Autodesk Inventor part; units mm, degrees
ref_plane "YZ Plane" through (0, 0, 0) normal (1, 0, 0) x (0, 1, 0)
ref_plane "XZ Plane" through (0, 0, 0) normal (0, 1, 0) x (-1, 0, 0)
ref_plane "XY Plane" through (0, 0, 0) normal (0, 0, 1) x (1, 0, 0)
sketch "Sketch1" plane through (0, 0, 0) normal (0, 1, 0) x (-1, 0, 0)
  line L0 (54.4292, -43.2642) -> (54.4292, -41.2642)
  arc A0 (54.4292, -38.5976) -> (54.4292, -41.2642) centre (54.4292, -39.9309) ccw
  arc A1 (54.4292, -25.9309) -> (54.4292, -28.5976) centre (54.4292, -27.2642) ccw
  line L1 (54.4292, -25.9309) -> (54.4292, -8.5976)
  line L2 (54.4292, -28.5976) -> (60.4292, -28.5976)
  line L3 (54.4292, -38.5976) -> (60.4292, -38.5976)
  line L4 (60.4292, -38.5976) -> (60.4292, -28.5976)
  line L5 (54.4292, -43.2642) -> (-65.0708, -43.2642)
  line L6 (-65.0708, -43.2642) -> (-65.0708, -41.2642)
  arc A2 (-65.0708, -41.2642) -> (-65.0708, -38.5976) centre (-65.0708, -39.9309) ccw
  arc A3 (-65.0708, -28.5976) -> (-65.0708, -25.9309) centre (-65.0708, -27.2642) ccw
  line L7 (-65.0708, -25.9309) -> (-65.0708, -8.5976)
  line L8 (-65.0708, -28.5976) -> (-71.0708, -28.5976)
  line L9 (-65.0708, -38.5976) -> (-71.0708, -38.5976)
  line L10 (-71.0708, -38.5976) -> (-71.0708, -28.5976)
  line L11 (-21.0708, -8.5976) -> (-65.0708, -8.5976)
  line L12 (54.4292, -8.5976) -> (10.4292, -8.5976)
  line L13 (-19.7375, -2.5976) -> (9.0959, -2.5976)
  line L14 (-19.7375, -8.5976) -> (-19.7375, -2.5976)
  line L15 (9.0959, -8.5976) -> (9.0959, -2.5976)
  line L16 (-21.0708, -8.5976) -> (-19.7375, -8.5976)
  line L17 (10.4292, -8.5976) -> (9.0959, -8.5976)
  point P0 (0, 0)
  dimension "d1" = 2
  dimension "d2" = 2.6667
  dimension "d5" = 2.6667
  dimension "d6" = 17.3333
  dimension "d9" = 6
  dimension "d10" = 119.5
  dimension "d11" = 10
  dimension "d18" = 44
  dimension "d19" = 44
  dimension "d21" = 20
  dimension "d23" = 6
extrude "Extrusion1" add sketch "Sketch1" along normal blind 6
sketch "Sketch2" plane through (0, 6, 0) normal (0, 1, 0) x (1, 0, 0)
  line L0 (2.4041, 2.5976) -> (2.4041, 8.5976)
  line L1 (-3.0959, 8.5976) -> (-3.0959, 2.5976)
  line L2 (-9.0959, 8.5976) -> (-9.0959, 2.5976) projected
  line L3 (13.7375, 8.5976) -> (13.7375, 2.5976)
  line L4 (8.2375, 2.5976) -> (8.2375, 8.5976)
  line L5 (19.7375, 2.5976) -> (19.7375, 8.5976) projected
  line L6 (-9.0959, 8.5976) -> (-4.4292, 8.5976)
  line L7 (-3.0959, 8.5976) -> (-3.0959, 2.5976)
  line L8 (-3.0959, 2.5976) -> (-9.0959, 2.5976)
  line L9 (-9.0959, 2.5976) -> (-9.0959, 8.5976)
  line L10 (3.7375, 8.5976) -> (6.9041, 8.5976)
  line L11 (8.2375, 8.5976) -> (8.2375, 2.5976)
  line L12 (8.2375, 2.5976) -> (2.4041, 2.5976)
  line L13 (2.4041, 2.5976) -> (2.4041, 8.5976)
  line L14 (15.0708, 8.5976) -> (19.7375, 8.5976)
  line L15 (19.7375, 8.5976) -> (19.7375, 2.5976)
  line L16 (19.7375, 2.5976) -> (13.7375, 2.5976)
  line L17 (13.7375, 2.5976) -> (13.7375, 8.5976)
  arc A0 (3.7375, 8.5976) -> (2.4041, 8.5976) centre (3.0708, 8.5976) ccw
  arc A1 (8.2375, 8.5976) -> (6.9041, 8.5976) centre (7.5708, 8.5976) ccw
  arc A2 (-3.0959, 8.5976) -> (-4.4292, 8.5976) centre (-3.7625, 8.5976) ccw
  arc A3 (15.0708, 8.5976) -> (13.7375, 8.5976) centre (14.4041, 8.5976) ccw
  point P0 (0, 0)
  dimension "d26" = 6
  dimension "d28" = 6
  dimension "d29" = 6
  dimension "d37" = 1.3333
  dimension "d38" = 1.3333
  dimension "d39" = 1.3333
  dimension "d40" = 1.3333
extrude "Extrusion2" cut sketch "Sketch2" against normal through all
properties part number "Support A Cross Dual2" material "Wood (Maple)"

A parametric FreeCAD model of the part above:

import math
import FreeCAD as App
import Part
import Sketcher
from FreeCAD import Vector

doc = App.newDocument("Part")
body = doc.addObject("PartDesign::Body", "Body")

sketch1 = body.newObject("Sketcher::SketchObject", "Sketch")
sketch1.AttachmentSupport = (doc.getObject("XZ_Plane"), [""])
sketch1.MapMode = "FlatFace"
sketch1.addGeometry([
    Part.LineSegment(Vector(65.1, -43.3, 0), Vector(-54.4, -43.3, 0)),
    Part.LineSegment(Vector(-54.4, -43.3, 0), Vector(-54.4, -41.3, 0)),
    Part.ArcOfCircle(Part.Circle(Vector(-54.4, -39.9, 0), Vector(0, 0, 1), 1.3), math.radians(-90), math.radians(90)),
    Part.LineSegment(Vector(-54.4, -38.6, 0), Vector(-60.4, -38.6, 0)),
    Part.LineSegment(Vector(-60.4, -38.6, 0), Vector(-60.4, -28.6, 0)),
    Part.LineSegment(Vector(-60.4, -28.6, 0), Vector(-54.4, -28.6, 0)),
    Part.ArcOfCircle(Part.Circle(Vector(-54.4, -27.3, 0), Vector(0, 0, 1), 1.3), math.radians(-90), math.radians(90)),
    Part.LineSegment(Vector(-54.4, -25.9, 0), Vector(-54.4, -8.6, 0)),
    Part.LineSegment(Vector(-54.4, -8.6, 0), Vector(-9.1, -8.6, 0)),
    Part.LineSegment(Vector(-9.1, -8.6, 0), Vector(-9.1, -2.6, 0)),
    Part.LineSegment(Vector(-9.1, -2.6, 0), Vector(19.7, -2.6, 0)),
    Part.LineSegment(Vector(19.7, -2.6, 0), Vector(19.7, -8.6, 0)),
    Part.LineSegment(Vector(19.7, -8.6, 0), Vector(65.1, -8.6, 0)),
    Part.LineSegment(Vector(65.1, -8.6, 0), Vector(65.1, -25.9, 0)),
    Part.ArcOfCircle(Part.Circle(Vector(65.1, -27.3, 0), Vector(0, 0, 1), 1.3), math.radians(90), math.radians(270)),
    Part.LineSegment(Vector(65.1, -28.6, 0), Vector(71.1, -28.6, 0)),
    Part.LineSegment(Vector(71.1, -28.6, 0), Vector(71.1, -38.6, 0)),
    Part.LineSegment(Vector(71.1, -38.6, 0), Vector(65.1, -38.6, 0)),
    Part.ArcOfCircle(Part.Circle(Vector(65.1, -39.9, 0), Vector(0, 0, 1), 1.3), math.radians(90), math.radians(270)),
    Part.LineSegment(Vector(65.1, -41.3, 0), Vector(65.1, -43.3, 0)),
], False)
sketch1.addConstraint([
    Sketcher.Constraint("Coincident", 0, 2, 1, 1),
    Sketcher.Constraint("Coincident", 1, 2, 2, 1),
    Sketcher.Constraint("Tangent", 2, 2, 3, 1),
    Sketcher.Constraint("Coincident", 3, 2, 4, 1),
    Sketcher.Constraint("Coincident", 4, 2, 5, 1),
    Sketcher.Constraint("Tangent", 5, 2, 6, 1),
    Sketcher.Constraint("Coincident", 6, 2, 7, 1),
    Sketcher.Constraint("Coincident", 7, 2, 8, 1),
    Sketcher.Constraint("Coincident", 8, 2, 9, 1),
    Sketcher.Constraint("Coincident", 9, 2, 10, 1),
    Sketcher.Constraint("Coincident", 10, 2, 11, 1),
    Sketcher.Constraint("Coincident", 11, 2, 12, 1),
    Sketcher.Constraint("Coincident", 12, 2, 13, 1),
    Sketcher.Constraint("Coincident", 13, 2, 14, 1),
    Sketcher.Constraint("Tangent", 14, 2, 15, 1),
    Sketcher.Constraint("Coincident", 15, 2, 16, 1),
    Sketcher.Constraint("Coincident", 16, 2, 17, 1),
    Sketcher.Constraint("Tangent", 17, 2, 18, 1),
    Sketcher.Constraint("Coincident", 18, 2, 19, 1),
    Sketcher.Constraint("Coincident", 19, 2, 0, 1),
    Sketcher.Constraint("Horizontal", 0),
    Sketcher.Constraint("Vertical", 1),
    Sketcher.Constraint("Horizontal", 3),
    Sketcher.Constraint("Vertical", 4),
    Sketcher.Constraint("Horizontal", 5),
    Sketcher.Constraint("Vertical", 7),
    Sketcher.Constraint("Horizontal", 8),
    Sketcher.Constraint("Vertical", 9),
    Sketcher.Constraint("Horizontal", 10),
    Sketcher.Constraint("Vertical", 11),
    Sketcher.Constraint("Horizontal", 12),
    Sketcher.Constraint("Vertical", 13),
    Sketcher.Constraint("Horizontal", 15),
    Sketcher.Constraint("Vertical", 16),
    Sketcher.Constraint("Horizontal", 17),
    Sketcher.Constraint("Vertical", 19),
    Sketcher.Constraint("Equal", 2, 6),
    Sketcher.Constraint("Equal", 6, 14),
    Sketcher.Constraint("Equal", 14, 18),
    Sketcher.Constraint("Horizontal", 6, 3, 14, 3),
    Sketcher.Constraint("Horizontal", 2, 3, 18, 3),
    Sketcher.Constraint("Horizontal", 8, 2, 11, 2),
    Sketcher.Constraint("Vertical", 2, 3, 6, 3),
    Sketcher.Constraint("Vertical", 14, 3, 18, 3),
    Sketcher.Constraint("Vertical", 6, 3, 0, 2),
    Sketcher.Constraint("Vertical", 5, 2, 6, 2),
    Sketcher.Constraint("Vertical", 18, 3, 12, 2),
    Sketcher.Constraint("Vertical", 17, 2, 18, 2),
    Sketcher.Constraint("Equal", 8, 12),
    Sketcher.Constraint("Equal", 5, 15),
    Sketcher.Constraint("Equal", 17, 9),
    Sketcher.Constraint("DistanceX", 3, 2, 3, 1, 6.0),
    Sketcher.Constraint("DistanceY", 1, 1, 1, 2, 2.0),
    Sketcher.Constraint("DistanceY", 4, 1, 4, 2, 10.0),
    Sketcher.Constraint("DistanceX", 0, 2, 0, 1, 119.5),
    Sketcher.Constraint("DistanceY", 5, 2, 7, 2, 20.0),
    Sketcher.Constraint("Radius", 2, 1.3333),
    Sketcher.Constraint("DistanceX", 8, 1, 8, 2, 45.3333),
    Sketcher.Constraint("DistanceY", 2, 3, -1, 1, 39.931),
    Sketcher.Constraint("DistanceX", 8, 2, -1, 1, 9.096),
])
pad1 = body.newObject("PartDesign::Pad", "Pad")
pad1.Profile = sketch1
pad1.Length = 6
pad1.Reversed = True

sketch2 = body.newObject("Sketcher::SketchObject", "Sketch001")
sketch2.AttachmentSupport = (doc.getObject("XZ_Plane"), [""])
sketch2.MapMode = "FlatFace"
sketch2.AttachmentOffset = App.Placement(Vector(0, 0, -6), App.Rotation())
sketch2.addGeometry([
    Part.LineSegment(Vector(2.4, -8.6, 0), Vector(2.4, -2.6, 0)),
    Part.LineSegment(Vector(2.4, -2.6, 0), Vector(8.2, -2.6, 0)),
    Part.LineSegment(Vector(8.2, -2.6, 0), Vector(8.2, -8.6, 0)),
    Part.ArcOfCircle(Part.Circle(Vector(7.6, -8.6, 0), Vector(0, 0, 1), 0.7), math.radians(180), math.radians(360)),
    Part.LineSegment(Vector(6.9, -8.6, 0), Vector(3.7, -8.6, 0)),
    Part.ArcOfCircle(Part.Circle(Vector(3.1, -8.6, 0), Vector(0, 0, 1), 0.7), math.radians(180), math.radians(360)),
    Part.LineSegment(Vector(-3.1, -2.6, 0), Vector(-3.1, -8.6, 0)),
    Part.ArcOfCircle(Part.Circle(Vector(-3.8, -8.6, 0), Vector(0, 0, 1), 0.7), math.radians(180), math.radians(360)),
    Part.LineSegment(Vector(-4.4, -8.6, 0), Vector(-9.1, -8.6, 0)),
    Part.LineSegment(Vector(-9.1, -8.6, 0), Vector(-9.1, -2.6, 0)),
    Part.LineSegment(Vector(-9.1, -2.6, 0), Vector(-3.1, -2.6, 0)),
    Part.ArcOfCircle(Part.Circle(Vector(14.4, -8.6, 0), Vector(0, 0, 1), 0.7), math.radians(180), math.radians(360)),
    Part.LineSegment(Vector(13.7, -8.6, 0), Vector(13.7, -2.6, 0)),
    Part.LineSegment(Vector(13.7, -2.6, 0), Vector(19.7, -2.6, 0)),
    Part.LineSegment(Vector(19.7, -2.6, 0), Vector(19.7, -8.6, 0)),
    Part.LineSegment(Vector(19.7, -8.6, 0), Vector(15.1, -8.6, 0)),
], False)
sketch2.addConstraint([
    Sketcher.Constraint("Coincident", 0, 2, 1, 1),
    Sketcher.Constraint("Coincident", 1, 2, 2, 1),
    Sketcher.Constraint("Tangent", 2, 2, 3, 2),
    Sketcher.Constraint("Coincident", 3, 1, 4, 1),
    Sketcher.Constraint("Coincident", 4, 2, 5, 2),
    Sketcher.Constraint("Tangent", 5, 1, 0, 1),
    Sketcher.Constraint("Tangent", 6, 2, 7, 2),
    Sketcher.Constraint("Coincident", 7, 1, 8, 1),
    Sketcher.Constraint("Coincident", 8, 2, 9, 1),
    Sketcher.Constraint("Coincident", 9, 2, 10, 1),
    Sketcher.Constraint("Coincident", 10, 2, 6, 1),
    Sketcher.Constraint("Tangent", 11, 1, 12, 1),
    Sketcher.Constraint("Coincident", 12, 2, 13, 1),
    Sketcher.Constraint("Coincident", 13, 2, 14, 1),
    Sketcher.Constraint("Coincident", 14, 2, 15, 1),
    Sketcher.Constraint("Coincident", 15, 2, 11, 2),
    Sketcher.Constraint("Vertical", 0),
    Sketcher.Constraint("Horizontal", 1),
    Sketcher.Constraint("Vertical", 2),
    Sketcher.Constraint("Horizontal", 4),
    Sketcher.Constraint("Vertical", 6),
    Sketcher.Constraint("Horizontal", 8),
    Sketcher.Constraint("Vertical", 9),
    Sketcher.Constraint("Horizontal", 10),
    Sketcher.Constraint("Vertical", 12),
    Sketcher.Constraint("Horizontal", 13),
    Sketcher.Constraint("Vertical", 14),
    Sketcher.Constraint("Horizontal", 15),
    Sketcher.Constraint("Equal", 3, 5),
    Sketcher.Constraint("Equal", 5, 7),
    Sketcher.Constraint("Equal", 7, 11),
    Sketcher.Constraint("Horizontal", 3, 3, 5, 3),
    Sketcher.Constraint("Horizontal", 5, 3, 7, 3),
    Sketcher.Constraint("Horizontal", 7, 3, 11, 3),
    Sketcher.Constraint("Horizontal", 2, 2, 3, 1),
    Sketcher.Constraint("Horizontal", 6, 2, 7, 1),
    Sketcher.Constraint("Horizontal", 1, 2, 9, 2),
    Sketcher.Constraint("Horizontal", 10, 2, 12, 2),
    Sketcher.Constraint("Horizontal", 11, 1, 14, 2),
    Sketcher.Constraint("Equal", 10, 13),
    Sketcher.Constraint("Equal", 13, 0),
    Sketcher.Constraint("DistanceX", 10, 1, 10, 2, 6.0),
    Sketcher.Constraint("Radius", 3, 0.6667),
    Sketcher.Constraint("DistanceX", 0, 2, 11, 3, 12.0),
    Sketcher.Constraint("DistanceX", 7, 3, 1, 2, 12.0),
    Sketcher.Constraint("DistanceX", 5, 3, 3, 3, 4.5),
    Sketcher.Constraint("DistanceX", -1, 1, 11, 3, 14.404),
    Sketcher.Constraint("DistanceY", 3, 3, -1, 1, 8.5976),
])
pocket1 = body.newObject("PartDesign::Pocket", "Pocket")
pocket1.Profile = sketch2
pocket1.Type = "ThroughAll"
pocket1.Reversed = True

doc.recompute()
